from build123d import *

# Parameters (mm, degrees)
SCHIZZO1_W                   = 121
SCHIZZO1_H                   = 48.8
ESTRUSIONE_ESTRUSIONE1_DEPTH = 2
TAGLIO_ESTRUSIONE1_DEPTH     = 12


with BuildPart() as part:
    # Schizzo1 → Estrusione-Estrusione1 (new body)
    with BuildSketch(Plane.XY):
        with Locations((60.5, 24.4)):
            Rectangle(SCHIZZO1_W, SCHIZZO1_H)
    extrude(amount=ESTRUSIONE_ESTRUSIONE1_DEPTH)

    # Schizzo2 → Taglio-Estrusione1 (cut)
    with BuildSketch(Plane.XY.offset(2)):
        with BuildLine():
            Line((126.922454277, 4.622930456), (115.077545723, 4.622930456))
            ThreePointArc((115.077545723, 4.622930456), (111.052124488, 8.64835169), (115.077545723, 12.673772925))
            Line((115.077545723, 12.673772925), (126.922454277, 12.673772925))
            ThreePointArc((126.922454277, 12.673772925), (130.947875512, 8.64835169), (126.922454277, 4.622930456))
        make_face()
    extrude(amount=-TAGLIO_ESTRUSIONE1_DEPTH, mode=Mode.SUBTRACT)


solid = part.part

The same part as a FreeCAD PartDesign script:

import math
import FreeCAD as App
import Part
import Sketcher
from FreeCAD import Vector
Q = App.Units.Quantity

doc = App.newDocument("Part")
body = doc.addObject("PartDesign::Body", "Body")

# Sketch on XY plane
sketch1 = doc.addObject("Sketcher::SketchObject", "Sketch")
body.addObject(sketch1)
sketch1.AttachmentSupport = (doc.XY_Plane, [""])
sketch1.MapMode = "FlatFace"
sketch1.addGeometry([
    Part.LineSegment(Vector(0, 48.8, 0), Vector(0, 0, 0)),
    Part.LineSegment(Vector(0, 0, 0), Vector(121, 0, 0)),
    Part.LineSegment(Vector(121, 0, 0), Vector(121, 48.8, 0)),
    Part.LineSegment(Vector(121, 48.8, 0), Vector(0, 48.8, 0)),
], False)
sketch1.addConstraint([
    Sketcher.Constraint("Coincident", 0, 2, 1, 1),
    Sketcher.Constraint("Coincident", 1, 2, 2, 1),
    Sketcher.Constraint("Coincident", 2, 2, 3, 1),
    Sketcher.Constraint("Coincident", 3, 2, 0, 1),
    Sketcher.Constraint("Vertical", 0),
    Sketcher.Constraint("Horizontal", 1),
    Sketcher.Constraint("Vertical", 2),
    Sketcher.Constraint("Horizontal", 3),
    Sketcher.Constraint("Coincident", 0, 2, -1, 1),
    Sketcher.Constraint("DistanceX", 1, 1, 1, 2, Q("121 mm")),
    Sketcher.Constraint("DistanceY", 0, 2, 0, 1, Q("48.8 mm")),
])
pad1 = doc.addObject("PartDesign::Pad", "Pad")
body.addObject(pad1)
pad1.Profile = sketch1
pad1.Length = 2

# Sketch on XY plane
sketch2 = doc.addObject("Sketcher::SketchObject", "Sketch001")
body.addObject(sketch2)
sketch2.AttachmentSupport = (doc.XY_Plane, [""])
sketch2.MapMode = "FlatFace"
sketch2.AttachmentOffset = App.Placement(Vector(0, 0, 2), App.Rotation())
sketch2.addGeometry([
    Part.LineSegment(Vector(115.077546, 4.62293, 0), Vector(126.922454, 4.62293, 0)),
    Part.ArcOfCircle(Part.Circle(Vector(126.922454, 8.648352, 0), Vector(0, 0, 1), 4.025421), math.radians(-90), math.radians(90)),
    Part.LineSegment(Vector(126.922454, 12.673773, 0), Vector(115.077546, 12.673773, 0)),
    Part.ArcOfCircle(Part.Circle(Vector(115.077546, 8.648352, 0), Vector(0, 0, 1), 4.025421), math.radians(90), math.radians(270)),
], False)
sketch2.addConstraint([
    Sketcher.Constraint("Tangent", 0, 2, 1, 1),
    Sketcher.Constraint("Tangent", 1, 2, 2, 1),
    Sketcher.Constraint("Tangent", 2, 2, 3, 1),
    Sketcher.Constraint("Tangent", 3, 2, 0, 1),
    Sketcher.Constraint("Horizontal", 0),
    Sketcher.Constraint("Horizontal", 2),
    Sketcher.Constraint("Radius", 1, Q("4.025421 mm")),
    Sketcher.Constraint("DistanceX", 0, 1, 0, 2, Q("11.844909 mm")),
    Sketcher.Constraint("DistanceY", -1, 1, 1, 3, Q("8.648352 mm")),
    Sketcher.Constraint("DistanceX", -1, 1, 1, 3, Q("126.922454 mm")),
])
pocket1 = doc.addObject("PartDesign::Pocket", "Pocket")
body.addObject(pocket1)
pocket1.Profile = sketch2
pocket1.Length = 12

doc.recompute()
